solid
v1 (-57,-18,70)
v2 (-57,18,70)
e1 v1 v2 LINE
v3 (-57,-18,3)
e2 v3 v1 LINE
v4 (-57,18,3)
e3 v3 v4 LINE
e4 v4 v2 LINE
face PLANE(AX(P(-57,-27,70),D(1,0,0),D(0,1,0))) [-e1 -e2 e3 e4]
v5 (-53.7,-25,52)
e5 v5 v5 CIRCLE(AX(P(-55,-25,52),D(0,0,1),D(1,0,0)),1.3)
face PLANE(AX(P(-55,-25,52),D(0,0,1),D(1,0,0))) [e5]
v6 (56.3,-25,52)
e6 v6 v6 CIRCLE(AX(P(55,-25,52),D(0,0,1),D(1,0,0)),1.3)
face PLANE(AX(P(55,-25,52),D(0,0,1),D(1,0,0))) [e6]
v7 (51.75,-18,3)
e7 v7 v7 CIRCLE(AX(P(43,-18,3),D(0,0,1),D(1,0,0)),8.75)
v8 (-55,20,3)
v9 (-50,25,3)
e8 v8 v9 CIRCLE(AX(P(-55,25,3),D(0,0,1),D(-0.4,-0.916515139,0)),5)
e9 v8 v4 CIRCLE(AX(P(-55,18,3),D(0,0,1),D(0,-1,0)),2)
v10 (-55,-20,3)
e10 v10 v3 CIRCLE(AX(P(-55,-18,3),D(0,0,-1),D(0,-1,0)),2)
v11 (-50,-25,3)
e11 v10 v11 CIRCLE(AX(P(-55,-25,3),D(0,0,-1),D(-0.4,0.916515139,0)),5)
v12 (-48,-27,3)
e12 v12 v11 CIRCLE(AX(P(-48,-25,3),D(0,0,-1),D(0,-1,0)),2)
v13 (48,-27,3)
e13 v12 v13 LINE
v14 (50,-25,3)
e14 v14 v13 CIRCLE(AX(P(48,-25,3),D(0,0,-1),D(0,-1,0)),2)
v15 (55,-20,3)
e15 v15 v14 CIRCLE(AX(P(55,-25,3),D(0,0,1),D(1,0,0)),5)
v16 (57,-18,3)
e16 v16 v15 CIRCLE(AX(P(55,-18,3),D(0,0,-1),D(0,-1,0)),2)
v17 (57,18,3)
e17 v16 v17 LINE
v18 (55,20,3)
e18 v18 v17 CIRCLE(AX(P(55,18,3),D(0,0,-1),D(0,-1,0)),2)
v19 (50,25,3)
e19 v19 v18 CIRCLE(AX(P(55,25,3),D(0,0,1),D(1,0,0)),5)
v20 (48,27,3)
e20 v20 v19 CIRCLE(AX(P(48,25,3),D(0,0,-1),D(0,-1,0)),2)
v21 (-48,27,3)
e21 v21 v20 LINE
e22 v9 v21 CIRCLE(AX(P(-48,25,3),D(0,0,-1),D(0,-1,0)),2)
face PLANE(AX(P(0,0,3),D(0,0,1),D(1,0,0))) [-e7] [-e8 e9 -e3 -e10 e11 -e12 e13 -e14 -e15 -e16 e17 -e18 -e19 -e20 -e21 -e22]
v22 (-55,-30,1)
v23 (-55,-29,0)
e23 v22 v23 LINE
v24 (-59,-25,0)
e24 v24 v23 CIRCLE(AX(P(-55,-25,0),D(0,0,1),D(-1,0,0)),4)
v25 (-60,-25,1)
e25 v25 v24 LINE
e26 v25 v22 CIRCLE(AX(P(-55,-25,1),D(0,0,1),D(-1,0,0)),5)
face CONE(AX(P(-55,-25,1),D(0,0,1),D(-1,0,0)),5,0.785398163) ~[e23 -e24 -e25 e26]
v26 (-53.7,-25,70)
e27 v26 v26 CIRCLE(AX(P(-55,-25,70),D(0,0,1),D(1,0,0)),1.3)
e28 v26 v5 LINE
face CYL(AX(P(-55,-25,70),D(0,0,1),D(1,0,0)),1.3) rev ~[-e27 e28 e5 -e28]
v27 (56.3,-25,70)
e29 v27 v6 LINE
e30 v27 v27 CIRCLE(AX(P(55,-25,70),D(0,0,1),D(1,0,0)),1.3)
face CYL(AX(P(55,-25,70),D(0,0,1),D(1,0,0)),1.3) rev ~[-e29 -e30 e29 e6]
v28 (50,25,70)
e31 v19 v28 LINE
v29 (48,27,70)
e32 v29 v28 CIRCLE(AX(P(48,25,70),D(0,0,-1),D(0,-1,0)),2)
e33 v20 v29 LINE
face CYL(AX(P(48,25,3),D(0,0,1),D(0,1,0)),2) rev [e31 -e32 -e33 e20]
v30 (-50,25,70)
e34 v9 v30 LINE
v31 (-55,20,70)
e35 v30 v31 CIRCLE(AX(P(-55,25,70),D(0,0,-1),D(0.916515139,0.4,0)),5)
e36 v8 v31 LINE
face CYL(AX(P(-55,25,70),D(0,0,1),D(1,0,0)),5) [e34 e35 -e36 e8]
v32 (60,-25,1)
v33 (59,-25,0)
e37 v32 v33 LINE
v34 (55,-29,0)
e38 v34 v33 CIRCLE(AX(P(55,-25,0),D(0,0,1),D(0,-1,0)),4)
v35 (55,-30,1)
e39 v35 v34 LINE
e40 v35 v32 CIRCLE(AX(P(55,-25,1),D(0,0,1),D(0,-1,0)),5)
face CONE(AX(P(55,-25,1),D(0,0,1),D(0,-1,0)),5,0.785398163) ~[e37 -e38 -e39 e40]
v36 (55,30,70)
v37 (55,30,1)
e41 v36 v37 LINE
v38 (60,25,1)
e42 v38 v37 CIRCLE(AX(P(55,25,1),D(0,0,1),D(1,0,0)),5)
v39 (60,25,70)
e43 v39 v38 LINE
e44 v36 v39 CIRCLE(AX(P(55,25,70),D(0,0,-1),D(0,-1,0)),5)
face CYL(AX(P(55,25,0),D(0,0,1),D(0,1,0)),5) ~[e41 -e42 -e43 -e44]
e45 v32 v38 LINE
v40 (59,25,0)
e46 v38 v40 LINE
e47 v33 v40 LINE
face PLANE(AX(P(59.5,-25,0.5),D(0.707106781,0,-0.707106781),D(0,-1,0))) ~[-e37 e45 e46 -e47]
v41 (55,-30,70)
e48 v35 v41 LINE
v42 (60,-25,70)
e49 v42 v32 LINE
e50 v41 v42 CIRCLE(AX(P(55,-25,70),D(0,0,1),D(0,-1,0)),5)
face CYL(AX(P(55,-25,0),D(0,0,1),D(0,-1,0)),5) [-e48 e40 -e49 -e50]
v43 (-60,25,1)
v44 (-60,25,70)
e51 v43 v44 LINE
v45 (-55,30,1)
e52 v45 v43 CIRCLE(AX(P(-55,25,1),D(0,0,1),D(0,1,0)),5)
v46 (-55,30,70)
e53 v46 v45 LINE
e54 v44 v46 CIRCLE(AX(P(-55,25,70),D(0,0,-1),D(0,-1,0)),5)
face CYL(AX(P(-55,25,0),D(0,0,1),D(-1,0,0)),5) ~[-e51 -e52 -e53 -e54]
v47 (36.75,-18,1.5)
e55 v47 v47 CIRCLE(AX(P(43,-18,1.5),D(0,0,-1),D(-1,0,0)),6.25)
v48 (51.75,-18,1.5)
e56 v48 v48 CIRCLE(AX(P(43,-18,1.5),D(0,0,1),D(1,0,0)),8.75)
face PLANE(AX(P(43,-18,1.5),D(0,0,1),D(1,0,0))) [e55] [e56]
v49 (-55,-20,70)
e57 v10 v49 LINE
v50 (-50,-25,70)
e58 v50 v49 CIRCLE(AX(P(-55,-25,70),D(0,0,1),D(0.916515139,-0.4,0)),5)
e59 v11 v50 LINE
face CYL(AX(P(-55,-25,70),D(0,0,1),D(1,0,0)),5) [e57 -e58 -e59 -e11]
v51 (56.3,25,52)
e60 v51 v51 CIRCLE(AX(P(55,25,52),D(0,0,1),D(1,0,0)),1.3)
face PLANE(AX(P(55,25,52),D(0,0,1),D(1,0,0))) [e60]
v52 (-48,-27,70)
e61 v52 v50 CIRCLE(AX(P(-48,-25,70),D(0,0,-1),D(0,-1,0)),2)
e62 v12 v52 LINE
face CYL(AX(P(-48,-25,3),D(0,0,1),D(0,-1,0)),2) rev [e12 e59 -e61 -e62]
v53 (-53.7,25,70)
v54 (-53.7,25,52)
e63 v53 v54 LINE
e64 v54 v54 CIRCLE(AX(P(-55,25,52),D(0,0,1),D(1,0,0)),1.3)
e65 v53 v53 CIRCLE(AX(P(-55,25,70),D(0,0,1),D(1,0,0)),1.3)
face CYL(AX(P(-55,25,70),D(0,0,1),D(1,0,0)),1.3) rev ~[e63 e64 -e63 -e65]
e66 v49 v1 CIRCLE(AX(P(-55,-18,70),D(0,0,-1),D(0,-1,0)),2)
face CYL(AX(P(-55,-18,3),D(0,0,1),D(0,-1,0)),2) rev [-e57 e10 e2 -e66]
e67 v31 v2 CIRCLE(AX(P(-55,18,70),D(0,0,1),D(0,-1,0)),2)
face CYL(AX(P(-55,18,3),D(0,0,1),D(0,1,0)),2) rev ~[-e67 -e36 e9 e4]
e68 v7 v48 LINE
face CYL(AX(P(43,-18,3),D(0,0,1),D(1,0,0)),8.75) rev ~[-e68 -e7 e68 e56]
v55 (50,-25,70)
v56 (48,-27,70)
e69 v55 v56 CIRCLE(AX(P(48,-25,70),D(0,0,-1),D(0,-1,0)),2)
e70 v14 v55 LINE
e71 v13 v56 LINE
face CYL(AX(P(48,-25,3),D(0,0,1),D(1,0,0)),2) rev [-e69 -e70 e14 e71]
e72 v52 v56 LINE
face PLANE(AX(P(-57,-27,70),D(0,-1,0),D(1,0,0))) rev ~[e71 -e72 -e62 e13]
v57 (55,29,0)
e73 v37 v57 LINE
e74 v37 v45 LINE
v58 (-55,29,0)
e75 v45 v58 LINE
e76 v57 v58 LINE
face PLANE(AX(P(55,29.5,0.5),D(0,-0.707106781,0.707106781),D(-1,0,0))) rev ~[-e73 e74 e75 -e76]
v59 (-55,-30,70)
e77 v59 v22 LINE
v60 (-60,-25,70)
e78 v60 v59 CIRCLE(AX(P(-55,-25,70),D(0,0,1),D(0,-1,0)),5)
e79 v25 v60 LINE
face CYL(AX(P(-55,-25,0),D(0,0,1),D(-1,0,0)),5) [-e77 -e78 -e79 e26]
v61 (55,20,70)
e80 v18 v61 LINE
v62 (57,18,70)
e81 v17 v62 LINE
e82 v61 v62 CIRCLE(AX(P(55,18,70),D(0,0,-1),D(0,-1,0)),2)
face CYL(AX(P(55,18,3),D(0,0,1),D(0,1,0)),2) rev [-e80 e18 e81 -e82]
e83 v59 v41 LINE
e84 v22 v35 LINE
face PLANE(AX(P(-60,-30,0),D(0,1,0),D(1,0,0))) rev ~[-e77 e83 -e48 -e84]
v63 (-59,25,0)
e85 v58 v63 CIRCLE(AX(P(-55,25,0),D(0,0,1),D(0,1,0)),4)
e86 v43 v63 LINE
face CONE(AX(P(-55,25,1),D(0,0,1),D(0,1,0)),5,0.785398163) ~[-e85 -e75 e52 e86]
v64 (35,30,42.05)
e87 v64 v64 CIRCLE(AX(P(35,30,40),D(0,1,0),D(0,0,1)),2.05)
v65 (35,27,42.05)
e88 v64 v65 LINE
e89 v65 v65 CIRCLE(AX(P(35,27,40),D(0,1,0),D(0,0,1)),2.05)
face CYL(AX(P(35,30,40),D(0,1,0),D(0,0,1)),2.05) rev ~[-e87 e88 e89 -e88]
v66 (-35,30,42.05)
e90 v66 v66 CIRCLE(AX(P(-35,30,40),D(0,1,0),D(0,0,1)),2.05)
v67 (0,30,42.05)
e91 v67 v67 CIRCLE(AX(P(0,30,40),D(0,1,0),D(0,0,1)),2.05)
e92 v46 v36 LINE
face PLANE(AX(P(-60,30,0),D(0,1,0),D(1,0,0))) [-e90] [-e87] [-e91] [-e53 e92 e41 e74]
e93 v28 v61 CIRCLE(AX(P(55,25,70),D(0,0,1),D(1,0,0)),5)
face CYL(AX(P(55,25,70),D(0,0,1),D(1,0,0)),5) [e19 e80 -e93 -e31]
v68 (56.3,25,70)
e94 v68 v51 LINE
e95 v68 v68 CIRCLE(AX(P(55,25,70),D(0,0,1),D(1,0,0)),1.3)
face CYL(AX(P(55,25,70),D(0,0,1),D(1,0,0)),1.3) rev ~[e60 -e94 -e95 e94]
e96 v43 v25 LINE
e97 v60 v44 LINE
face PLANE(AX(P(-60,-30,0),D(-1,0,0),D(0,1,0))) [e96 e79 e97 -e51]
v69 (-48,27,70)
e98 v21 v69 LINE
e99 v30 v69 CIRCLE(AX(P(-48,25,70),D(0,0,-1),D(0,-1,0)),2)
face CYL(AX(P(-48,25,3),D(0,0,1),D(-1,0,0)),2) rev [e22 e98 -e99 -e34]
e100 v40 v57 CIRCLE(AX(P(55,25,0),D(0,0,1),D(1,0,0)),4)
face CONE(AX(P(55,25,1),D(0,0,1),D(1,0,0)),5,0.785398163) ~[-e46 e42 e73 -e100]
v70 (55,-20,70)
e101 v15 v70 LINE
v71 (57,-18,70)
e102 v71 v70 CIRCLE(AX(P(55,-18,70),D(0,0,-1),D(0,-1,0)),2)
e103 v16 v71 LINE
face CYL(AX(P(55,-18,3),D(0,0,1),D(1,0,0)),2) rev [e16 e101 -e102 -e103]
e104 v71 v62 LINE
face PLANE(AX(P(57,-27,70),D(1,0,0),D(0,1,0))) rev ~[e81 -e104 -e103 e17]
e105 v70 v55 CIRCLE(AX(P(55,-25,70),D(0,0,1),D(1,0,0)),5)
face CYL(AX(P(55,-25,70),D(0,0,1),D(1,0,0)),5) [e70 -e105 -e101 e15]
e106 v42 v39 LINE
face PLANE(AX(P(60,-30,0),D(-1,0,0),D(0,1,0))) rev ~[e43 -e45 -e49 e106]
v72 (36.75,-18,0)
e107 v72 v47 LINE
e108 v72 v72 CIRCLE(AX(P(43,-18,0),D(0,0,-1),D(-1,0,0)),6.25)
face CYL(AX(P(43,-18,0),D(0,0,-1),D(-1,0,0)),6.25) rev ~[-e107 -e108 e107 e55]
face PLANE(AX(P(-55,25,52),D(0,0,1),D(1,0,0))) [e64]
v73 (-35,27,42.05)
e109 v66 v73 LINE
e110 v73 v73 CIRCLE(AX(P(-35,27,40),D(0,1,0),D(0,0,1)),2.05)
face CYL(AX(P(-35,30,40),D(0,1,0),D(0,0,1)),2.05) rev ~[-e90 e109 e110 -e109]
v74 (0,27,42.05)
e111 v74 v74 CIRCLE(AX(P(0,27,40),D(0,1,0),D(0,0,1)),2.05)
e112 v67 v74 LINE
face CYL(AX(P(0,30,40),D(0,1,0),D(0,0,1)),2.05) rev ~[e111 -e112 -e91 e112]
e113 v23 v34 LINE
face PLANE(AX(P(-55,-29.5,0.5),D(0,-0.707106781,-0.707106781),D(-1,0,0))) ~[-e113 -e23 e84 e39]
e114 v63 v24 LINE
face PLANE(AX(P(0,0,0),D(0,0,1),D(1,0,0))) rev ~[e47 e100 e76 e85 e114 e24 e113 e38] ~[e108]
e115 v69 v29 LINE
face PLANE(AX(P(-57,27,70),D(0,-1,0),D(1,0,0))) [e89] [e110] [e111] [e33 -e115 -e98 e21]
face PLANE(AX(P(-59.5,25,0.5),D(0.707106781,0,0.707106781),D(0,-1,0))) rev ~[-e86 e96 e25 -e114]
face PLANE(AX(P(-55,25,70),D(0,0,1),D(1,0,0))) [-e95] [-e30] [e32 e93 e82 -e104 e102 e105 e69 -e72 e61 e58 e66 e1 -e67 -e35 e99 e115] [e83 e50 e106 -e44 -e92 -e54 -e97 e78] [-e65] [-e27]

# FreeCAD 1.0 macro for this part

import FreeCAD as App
import Part
import Sketcher

V = App.Vector
Q = App.Units.Quantity


def edges_at(feature, points):
    """Names of the edges that pass closest to the given points."""
    edges = feature.Shape.Edges
    near = lambda p: min(range(len(edges)), key=lambda i: edges[i].distToShape(Part.Vertex(*p))[0])
    return sorted({f"Edge{near(p) + 1}" for p in points})


def add_polygon(sketch, points):
    """Adds a closed chain of lines whose ends are joined by coincident constraints."""
    first, n = sketch.GeometryCount, len(points)
    for a, b in zip(points, points[1:] + points[:1]):
        sketch.addGeometry(Part.LineSegment(App.Vector(*a, 0), App.Vector(*b, 0)), False)
    for i in range(n):
        sketch.addConstraint(Sketcher.Constraint("Coincident", first + i, 2, first + (i + 1) % n, 1))

doc = App.newDocument("Part")
body = doc.addObject("PartDesign::Body", "Body")

# Sketch on XY plane
sketch1 = body.newObject("Sketcher::SketchObject", "Sketch")
sketch1.AttachmentSupport = (doc.getObject("XY_Plane"), [""])
sketch1.MapMode = "FlatFace"
add_polygon(sketch1, [(-60, 30), (-60, -30), (60, -30), (60, 30)])  # lines 0-3
sketch1.addConstraint([
    Sketcher.Constraint("Vertical", 0),
    Sketcher.Constraint("Horizontal", 1),
    Sketcher.Constraint("Vertical", 2),
    Sketcher.Constraint("Horizontal", 3),
    Sketcher.Constraint("Symmetric", 0, 2, 2, 2, -1, 1),
    Sketcher.Constraint("DistanceX", 1, 1, 1, 2, Q("120 mm")),
    Sketcher.Constraint("DistanceY", 0, 2, 0, 1, Q("60 mm")),
])
pad1 = body.newObject("PartDesign::Pad", "Pad")
pad1.Profile = sketch1
pad1.Length = 70

# Sketch on XY plane
sketch2 = body.newObject("Sketcher::SketchObject", "Sketch001")
sketch2.AttachmentSupport = (doc.getObject("XY_Plane"), [""])
sketch2.MapMode = "FlatFace"
sketch2.AttachmentOffset = App.Placement(V(0, 0, 70), App.Rotation())
add_polygon(sketch2, [(-57, 27), (-57, -27), (57, -27), (57, 27)])  # lines 0-3
sketch2.addConstraint([
    Sketcher.Constraint("Vertical", 0),
    Sketcher.Constraint("Horizontal", 1),
    Sketcher.Constraint("Vertical", 2),
    Sketcher.Constraint("Horizontal", 3),
    Sketcher.Constraint("Symmetric", 0, 2, 2, 2, -1, 1),
    Sketcher.Constraint("DistanceX", 1, 1, 1, 2, Q("114 mm")),
    Sketcher.Constraint("DistanceY", 0, 2, 0, 1, Q("54 mm")),
])
pocket1 = body.newObject("PartDesign::Pocket", "Pocket")
pocket1.Profile = sketch2
pocket1.Length = 67
doc.recompute()

fillet = body.newObject("PartDesign::Fillet", "Fillet")
fillet.Base = (pocket1, edges_at(pocket1, [
    (60, -30, 35),
    (-60, -30, 35),
    (-60, 30, 35),
    (60, 30, 35),
]))
fillet.Radius = 5
doc.recompute()

fillet2 = body.newObject("PartDesign::Fillet", "Fillet001")
fillet2.Base = (fillet, edges_at(fillet, [
    (57, 27, 36.5),
    (57, -27, 36.5),
    (-57, -27, 36.5),
    (-57, 27, 36.5),
]))
fillet2.Radius = 2

# Sketch on XY plane
sketch3 = body.newObject("Sketcher::SketchObject", "Sketch002")
sketch3.AttachmentSupport = (doc.getObject("XY_Plane"), [""])
sketch3.MapMode = "FlatFace"
sketch3.AttachmentOffset = App.Placement(V(0, 0, 70), App.Rotation())
sketch3.addGeometry([
    Part.Circle(V(-55, 25, 0), V(0, 0, 1), 5),
    Part.Circle(V(55, 25, 0), V(0, 0, 1), 5),
    Part.Circle(V(55, -25, 0), V(0, 0, 1), 5),
    Part.Circle(V(-55, -25, 0), V(0, 0, 1), 5),
], False)
sketch3.addConstraint([
    Sketcher.Constraint("Equal", 0, 1),
    Sketcher.Constraint("Equal", 1, 2),
    Sketcher.Constraint("Equal", 2, 3),
    Sketcher.Constraint("Symmetric", 0, 3, 2, 3, -1, 1),
    Sketcher.Constraint("Symmetric", 1, 3, 3, 3, -1, 1),
    Sketcher.Constraint("Symmetric", 0, 3, 1, 3, -2),
    Sketcher.Constraint("Diameter", 0, Q("10 mm")),
    Sketcher.Constraint("DistanceX", 0, 3, -1, 1, Q("55 mm")),
    Sketcher.Constraint("DistanceY", -1, 1, 0, 3, Q("25 mm")),
])
pad2 = body.newObject("PartDesign::Pad", "Pad001")
pad2.Profile = sketch3
pad2.Length = 67
pad2.Reversed = True
doc.recompute()

fillet3 = body.newObject("PartDesign::Fillet", "Fillet002")
fillet3.Base = (pad2, edges_at(pad2, [
    (-50.417, -27, 36.5),
    (-57, -20.417, 36.5),
    (57, -20.417, 36.5),
    (50.417, -27, 36.5),
    (50.417, 27, 36.5),
    (57, 20.417, 36.5),
    (-57, 20.417, 36.5),
    (-50.417, 27, 36.5),
]))
fillet3.Radius = 2

# Sketch on XY plane
sketch4 = body.newObject("Sketcher::SketchObject", "Sketch003")
sketch4.AttachmentSupport = (doc.getObject("XY_Plane"), [""])
sketch4.MapMode = "FlatFace"
sketch4.AttachmentOffset = App.Placement(V(0, 0, 70), App.Rotation())
sketch4.addGeometry([
    Part.Circle(V(-55, 25, 0), V(0, 0, 1), 1.3),
    Part.Circle(V(55, 25, 0), V(0, 0, 1), 1.3),
    Part.Circle(V(55, -25, 0), V(0, 0, 1), 1.3),
    Part.Circle(V(-55, -25, 0), V(0, 0, 1), 1.3),
], False)
sketch4.addConstraint([
    Sketcher.Constraint("Equal", 0, 1),
    Sketcher.Constraint("Equal", 1, 2),
    Sketcher.Constraint("Equal", 2, 3),
    Sketcher.Constraint("Symmetric", 0, 3, 2, 3, -1, 1),
    Sketcher.Constraint("Symmetric", 1, 3, 3, 3, -1, 1),
    Sketcher.Constraint("Symmetric", 0, 3, 1, 3, -2),
    Sketcher.Constraint("Diameter", 0, Q("2.6 mm")),
    Sketcher.Constraint("DistanceX", 0, 3, -1, 1, Q("55 mm")),
    Sketcher.Constraint("DistanceY", -1, 1, 0, 3, Q("25 mm")),
])
pocket2 = body.newObject("PartDesign::Pocket", "Pocket001")
pocket2.Profile = sketch4
pocket2.Length = 18

# Sketch on XZ plane
sketch5 = body.newObject("Sketcher::SketchObject", "Sketch004")
sketch5.AttachmentSupport = (doc.getObject("XZ_Plane"), [""])
sketch5.MapMode = "FlatFace"
sketch5.AttachmentOffset = App.Placement(V(0, 0, -30), App.Rotation())
sketch5.addGeometry([
    Part.Circle(V(0, 40, 0), V(0, 0, 1), 2),
    Part.Circle(V(35, 40, 0), V(0, 0, 1), 2),
    Part.Circle(V(-35, 40, 0), V(0, 0, 1), 2),
], False)
sketch5.addConstraint([
    Sketcher.Constraint("Equal", 0, 1),
    Sketcher.Constraint("Equal", 1, 2),
    Sketcher.Constraint("Symmetric", 1, 3, 2, 3, -2),
    Sketcher.Constraint("PointOnObject", 0, 3, -2),
    Sketcher.Constraint("Horizontal", 0, 3, 1, 3),
    Sketcher.Constraint("Diameter", 0, Q("4.1 mm")),
    Sketcher.Constraint("DistanceY", -1, 1, 0, 3, Q("40 mm")),
    Sketcher.Constraint("DistanceX", -1, 1, 1, 3, Q("35 mm")),
])
pocket3 = body.newObject("PartDesign::Pocket", "Pocket002")
pocket3.Profile = sketch5
pocket3.Length = 3
pocket3.Reversed = True
doc.recompute()

chamfer = body.newObject("PartDesign::Chamfer", "Chamfer")
chamfer.Base = (pocket3, edges_at(pocket3, [
    (0, -30, 0),
    (60, 0, 0),
    (-60, 0, 0),
    (0, 30, 0),
    (-58.536, 28.536, 0),
    (58.536, 28.536, 0),
    (58.536, -28.536, 0),
    (-58.536, -28.536, 0),
]))
chamfer.Size = 1

# Sketch on XY plane
sketch6 = body.newObject("Sketcher::SketchObject", "Sketch005")
sketch6.AttachmentSupport = (doc.getObject("XY_Plane"), [""])
sketch6.MapMode = "FlatFace"
sketch6.addGeometry(Part.Circle(V(43, -18, 0), V(0, 0, 1), 6), False)
sketch6.addConstraint([
    Sketcher.Constraint("Diameter", 0, Q("12.5 mm")),
    Sketcher.Constraint("DistanceX", -1, 1, 0, 3, Q("43 mm")),
    Sketcher.Constraint("DistanceY", 0, 3, -1, 1, Q("18 mm")),
])
pocket4 = body.newObject("PartDesign::Pocket", "Pocket003")
pocket4.Profile = sketch6
pocket4.Type = "ThroughAll"
pocket4.Reversed = True

# Sketch on XY plane
sketch7 = body.newObject("Sketcher::SketchObject", "Sketch006")
sketch7.AttachmentSupport = (doc.getObject("XY_Plane"), [""])
sketch7.MapMode = "FlatFace"
sketch7.AttachmentOffset = App.Placement(V(0, 0, 3), App.Rotation())
sketch7.addGeometry(Part.Circle(V(43, -18, 0), V(0, 0, 1), 9), False)
sketch7.addConstraint([
    Sketcher.Constraint("Diameter", 0, Q("17.5 mm")),
    Sketcher.Constraint("DistanceX", -1, 1, 0, 3, Q("43 mm")),
    Sketcher.Constraint("DistanceY", 0, 3, -1, 1, Q("18 mm")),
])
pocket5 = body.newObject("PartDesign::Pocket", "Pocket004")
pocket5.Profile = sketch7
pocket5.Length = 1.5

doc.recompute()
